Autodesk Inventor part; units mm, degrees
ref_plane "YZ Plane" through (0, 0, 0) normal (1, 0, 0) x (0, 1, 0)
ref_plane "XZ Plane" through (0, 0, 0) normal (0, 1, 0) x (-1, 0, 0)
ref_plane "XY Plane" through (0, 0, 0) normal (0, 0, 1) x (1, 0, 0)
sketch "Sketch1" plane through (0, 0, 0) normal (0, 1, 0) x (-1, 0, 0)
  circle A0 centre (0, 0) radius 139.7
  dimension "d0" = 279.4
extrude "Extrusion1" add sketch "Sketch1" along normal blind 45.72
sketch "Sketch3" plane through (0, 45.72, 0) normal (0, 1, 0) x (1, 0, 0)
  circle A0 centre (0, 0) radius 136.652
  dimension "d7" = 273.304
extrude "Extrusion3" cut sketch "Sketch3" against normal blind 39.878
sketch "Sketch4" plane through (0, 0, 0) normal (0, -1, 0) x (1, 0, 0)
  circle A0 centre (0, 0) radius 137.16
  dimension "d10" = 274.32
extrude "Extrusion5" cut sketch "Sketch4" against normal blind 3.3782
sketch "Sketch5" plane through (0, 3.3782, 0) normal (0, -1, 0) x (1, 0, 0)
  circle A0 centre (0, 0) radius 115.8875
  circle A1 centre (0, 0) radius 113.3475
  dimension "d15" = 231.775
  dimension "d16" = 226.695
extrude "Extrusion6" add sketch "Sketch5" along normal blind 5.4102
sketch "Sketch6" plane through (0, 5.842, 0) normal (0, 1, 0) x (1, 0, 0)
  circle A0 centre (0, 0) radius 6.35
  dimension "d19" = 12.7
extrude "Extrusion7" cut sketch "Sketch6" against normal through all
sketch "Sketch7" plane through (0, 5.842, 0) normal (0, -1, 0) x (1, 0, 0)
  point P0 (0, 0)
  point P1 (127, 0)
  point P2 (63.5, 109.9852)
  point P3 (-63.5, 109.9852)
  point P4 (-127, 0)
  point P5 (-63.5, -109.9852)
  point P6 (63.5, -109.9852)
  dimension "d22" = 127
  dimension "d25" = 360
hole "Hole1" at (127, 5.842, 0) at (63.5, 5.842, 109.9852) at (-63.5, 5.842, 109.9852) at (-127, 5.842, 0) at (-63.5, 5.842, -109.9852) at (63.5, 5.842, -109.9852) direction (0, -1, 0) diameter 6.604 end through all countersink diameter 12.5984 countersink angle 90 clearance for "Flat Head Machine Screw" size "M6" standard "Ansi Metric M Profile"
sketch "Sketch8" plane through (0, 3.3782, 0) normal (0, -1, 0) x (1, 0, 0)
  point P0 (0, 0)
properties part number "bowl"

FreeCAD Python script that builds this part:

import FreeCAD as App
import Part
import Sketcher

V = App.Vector
Q = App.Units.Quantity

doc = App.newDocument("Part")
params = doc.addObject("Spreadsheet::Sheet", "Params")
for row, (alias, value) in enumerate([
    ("sketch1_diameter", "11 in"),
    ("pad1_length", "1.8 in"),
    ("sketch2_diameter", "10.76 in"),
    ("pocket1_length", "1.57 in"),
    ("sketch3_diameter", "10.8 in"),
    ("pocket2_length", "0.133 in"),
    ("sketch4_diameter", "9.125 in"),
    ("sketch4_diameter2", "8.925 in"),
    ("pad2_length", "0.213 in"),
    ("sketch5_diameter", "0.5 in"),
    ("sketch6_diameter", "0.26 in"),
    ("hole_diameter", "0.26 in"),
    ("hole_csink_diameter", "0.496 in"),
], start=1):
    params.set(f"A{row}", alias)
    params.set(f"B{row}", "=" + value)
    params.setAlias(f"B{row}", alias)

body = doc.addObject("PartDesign::Body", "Body")

sketch1 = body.newObject("Sketcher::SketchObject", "Sketch")
sketch1.AttachmentSupport = (doc.getObject("XZ_Plane"), [""])
sketch1.MapMode = "FlatFace"
sketch1.addGeometry(Part.Circle(V(0, 0, 0), V(0, 0, 1), 139.7), False)
sketch1.addConstraint(Sketcher.Constraint("Coincident", 0, 3, -1, 1))
sketch1.addConstraint(Sketcher.Constraint("Diameter", 0, Q("11 in")))
sketch1.setExpression("Constraints[1]", "Params.sketch1_diameter")
pad1 = body.newObject("PartDesign::Pad", "Pad")
pad1.Profile = sketch1
pad1.setExpression("Length", "Params.pad1_length")
pad1.Reversed = True

sketch2 = body.newObject("Sketcher::SketchObject", "Sketch001")
sketch2.AttachmentSupport = (doc.getObject("XZ_Plane"), [""])
sketch2.MapMode = "FlatFace"
sketch2.AttachmentOffset = App.Placement(V(0, 0, -1.8 * 25.4), App.Rotation())
sketch2.addGeometry(Part.Circle(V(0, 0, 0), V(0, 0, 1), 136.652), False)
sketch2.addConstraint(Sketcher.Constraint("Coincident", 0, 3, -1, 1))
sketch2.addConstraint(Sketcher.Constraint("Diameter", 0, Q("10.76 in")))
sketch2.setExpression("Constraints[1]", "Params.sketch2_diameter")
pocket1 = body.newObject("PartDesign::Pocket", "Pocket")
pocket1.Profile = sketch2
pocket1.setExpression("Length", "Params.pocket1_length")
pocket1.Reversed = True

sketch3 = body.newObject("Sketcher::SketchObject", "Sketch002")
sketch3.AttachmentSupport = (doc.getObject("XZ_Plane"), [""])
sketch3.MapMode = "FlatFace"
sketch3.addGeometry(Part.Circle(V(0, 0, 0), V(0, 0, 1), 137.16), False)
sketch3.addConstraint(Sketcher.Constraint("Coincident", 0, 3, -1, 1))
sketch3.addConstraint(Sketcher.Constraint("Diameter", 0, Q("10.8 in")))
sketch3.setExpression("Constraints[1]", "Params.sketch3_diameter")
pocket2 = body.newObject("PartDesign::Pocket", "Pocket001")
pocket2.Profile = sketch3
pocket2.setExpression("Length", "Params.pocket2_length")

sketch4 = body.newObject("Sketcher::SketchObject", "Sketch003")
sketch4.AttachmentSupport = (doc.getObject("XZ_Plane"), [""])
sketch4.MapMode = "FlatFace"
sketch4.AttachmentOffset = App.Placement(V(0, 0, -0.133 * 25.4), App.Rotation())
sketch4.addGeometry(Part.Circle(V(0, 0, 0), V(0, 0, 1), 115.8875), False)
sketch4.addGeometry(Part.Circle(V(0, 0, 0), V(0, 0, 1), 113.3475), False)
sketch4.addConstraint(Sketcher.Constraint("Coincident", 0, 3, -1, 1))
sketch4.addConstraint(Sketcher.Constraint("Coincident", 1, 3, -1, 1))
sketch4.addConstraint(Sketcher.Constraint("Diameter", 0, Q("9.125 in")))
sketch4.addConstraint(Sketcher.Constraint("Diameter", 1, Q("8.925 in")))
sketch4.setExpression("Constraints[2]", "Params.sketch4_diameter")
sketch4.setExpression("Constraints[3]", "Params.sketch4_diameter2")
pad2 = body.newObject("PartDesign::Pad", "Pad001")
pad2.Profile = sketch4
pad2.setExpression("Length", "Params.pad2_length")

sketch5 = body.newObject("Sketcher::SketchObject", "Sketch004")
sketch5.AttachmentSupport = (doc.getObject("XZ_Plane"), [""])
sketch5.MapMode = "FlatFace"
sketch5.AttachmentOffset = App.Placement(V(0, 0, -0.23 * 25.4), App.Rotation())
sketch5.addGeometry(Part.Circle(V(0, 0, 0), V(0, 0, 1), 6.35), False)
sketch5.addConstraint(Sketcher.Constraint("Coincident", 0, 3, -1, 1))
sketch5.addConstraint(Sketcher.Constraint("Diameter", 0, Q("0.5 in")))
sketch5.setExpression("Constraints[1]", "Params.sketch5_diameter")
pocket3 = body.newObject("PartDesign::Pocket", "Pocket002")
pocket3.Profile = sketch5
pocket3.Type = "ThroughAll"
pocket3.Reversed = True

sketch6 = body.newObject("Sketcher::SketchObject", "Sketch005")
sketch6.AttachmentSupport = (doc.getObject("XZ_Plane"), [""])
sketch6.MapMode = "FlatFace"
sketch6.AttachmentOffset = App.Placement(V(0, 0, -0.23 * 25.4), App.Rotation())
sketch6.addGeometry(Part.Circle(V(127, 0, 0), V(0, 0, 1), 3.302), False)
sketch6.addGeometry(Part.Circle(V(63.5, 109.9852, 0), V(0, 0, 1), 3.302), False)
sketch6.addGeometry(Part.Circle(V(-63.5, 109.9852, 0), V(0, 0, 1), 3.302), False)
sketch6.addGeometry(Part.Circle(V(-127, 0, 0), V(0, 0, 1), 3.302), False)
sketch6.addGeometry(Part.Circle(V(-63.5, -109.9852, 0), V(0, 0, 1), 3.302), False)
sketch6.addGeometry(Part.Circle(V(63.5, -109.9852, 0), V(0, 0, 1), 3.302), False)
sketch6.addConstraint(Sketcher.Constraint("Equal", 0, 1))
sketch6.addConstraint(Sketcher.Constraint("Equal", 1, 2))
sketch6.addConstraint(Sketcher.Constraint("Equal", 2, 3))
sketch6.addConstraint(Sketcher.Constraint("Equal", 3, 4))
sketch6.addConstraint(Sketcher.Constraint("Equal", 4, 5))
sketch6.addConstraint(Sketcher.Constraint("Symmetric", 0, 3, 3, 3, -1, 1))
sketch6.addConstraint(Sketcher.Constraint("Symmetric", 1, 3, 4, 3, -1, 1))
sketch6.addConstraint(Sketcher.Constraint("Symmetric", 2, 3, 5, 3, -1, 1))
sketch6.addConstraint(Sketcher.Constraint("Symmetric", 1, 3, 2, 3, -2))
sketch6.addConstraint(Sketcher.Constraint("PointOnObject", 0, 3, -1))
sketch6.addConstraint(Sketcher.Constraint("Diameter", 0, Q("0.26 in")))
sketch6.addConstraint(Sketcher.Constraint("DistanceX", -1, 1, 0, 3, Q("5 in")))
sketch6.addConstraint(Sketcher.Constraint("DistanceX", 2, 3, 1, 3, Q("5 in")))
sketch6.addConstraint(Sketcher.Constraint("DistanceY", -1, 1, 1, 3, 109.9852))
sketch6.setExpression("Constraints[10]", "Params.sketch6_diameter")
doc.recompute()
hole = body.newObject("PartDesign::Hole", "Hole")
hole.Profile = sketch6
hole.ThreadType = "None"
hole.setExpression("Diameter", "Params.hole_diameter")
hole.DepthType = "ThroughAll"
hole.HoleCutType = "Countersink"
hole.setExpression("HoleCutDiameter", "Params.hole_csink_diameter")
hole.HoleCutCountersinkAngle = 90
hole.Reversed = True

doc.recompute()
